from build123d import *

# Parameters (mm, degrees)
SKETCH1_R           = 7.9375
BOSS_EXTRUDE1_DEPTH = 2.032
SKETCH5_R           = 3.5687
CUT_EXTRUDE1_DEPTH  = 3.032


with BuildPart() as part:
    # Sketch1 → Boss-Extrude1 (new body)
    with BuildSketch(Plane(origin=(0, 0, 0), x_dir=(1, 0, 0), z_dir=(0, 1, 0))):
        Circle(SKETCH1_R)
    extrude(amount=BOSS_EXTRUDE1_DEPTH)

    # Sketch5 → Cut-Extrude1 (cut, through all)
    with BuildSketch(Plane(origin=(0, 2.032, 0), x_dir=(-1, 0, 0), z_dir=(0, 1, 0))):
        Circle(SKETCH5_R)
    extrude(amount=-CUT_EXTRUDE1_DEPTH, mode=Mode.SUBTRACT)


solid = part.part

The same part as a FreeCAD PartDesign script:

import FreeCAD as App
import Part
import Sketcher
from FreeCAD import Vector
Q = App.Units.Quantity

doc = App.newDocument("Part")
body = doc.addObject("PartDesign::Body", "Body")

sketch1 = body.newObject("Sketcher::SketchObject", "Sketch")
sketch1.AttachmentSupport = (doc.getObject("XZ_Plane"), [""])
sketch1.MapMode = "FlatFace"
sketch1.addGeometry(Part.Circle(Vector(0, 0, 0), Vector(0, 0, 1), 7.9375), False)
sketch1.addConstraint([
    Sketcher.Constraint("Coincident", 0, 3, -1, 1),
    Sketcher.Constraint("Diameter", 0, Q("0.625 in")),
])
pad1 = body.newObject("PartDesign::Pad", "Pad")
pad1.Profile = sketch1
pad1.Length = Q("0.08 in")
pad1.Reversed = True

sketch2 = body.newObject("Sketcher::SketchObject", "Sketch001")
sketch2.AttachmentSupport = (doc.getObject("XZ_Plane"), [""])
sketch2.MapMode = "FlatFace"
sketch2.AttachmentOffset = App.Placement(Vector(0, 0, -0.08 * 25.4), App.Rotation())
sketch2.addGeometry(Part.Circle(Vector(0, 0, 0), Vector(0, 0, 1), 3.5687), False)
sketch2.addConstraint([
    Sketcher.Constraint("Coincident", 0, 3, -1, 1),
    Sketcher.Constraint("Diameter", 0, Q("0.281 in")),
])
pocket1 = body.newObject("PartDesign::Pocket", "Pocket")
pocket1.Profile = sketch2
pocket1.Type = "ThroughAll"
pocket1.Reversed = True

doc.recompute()
